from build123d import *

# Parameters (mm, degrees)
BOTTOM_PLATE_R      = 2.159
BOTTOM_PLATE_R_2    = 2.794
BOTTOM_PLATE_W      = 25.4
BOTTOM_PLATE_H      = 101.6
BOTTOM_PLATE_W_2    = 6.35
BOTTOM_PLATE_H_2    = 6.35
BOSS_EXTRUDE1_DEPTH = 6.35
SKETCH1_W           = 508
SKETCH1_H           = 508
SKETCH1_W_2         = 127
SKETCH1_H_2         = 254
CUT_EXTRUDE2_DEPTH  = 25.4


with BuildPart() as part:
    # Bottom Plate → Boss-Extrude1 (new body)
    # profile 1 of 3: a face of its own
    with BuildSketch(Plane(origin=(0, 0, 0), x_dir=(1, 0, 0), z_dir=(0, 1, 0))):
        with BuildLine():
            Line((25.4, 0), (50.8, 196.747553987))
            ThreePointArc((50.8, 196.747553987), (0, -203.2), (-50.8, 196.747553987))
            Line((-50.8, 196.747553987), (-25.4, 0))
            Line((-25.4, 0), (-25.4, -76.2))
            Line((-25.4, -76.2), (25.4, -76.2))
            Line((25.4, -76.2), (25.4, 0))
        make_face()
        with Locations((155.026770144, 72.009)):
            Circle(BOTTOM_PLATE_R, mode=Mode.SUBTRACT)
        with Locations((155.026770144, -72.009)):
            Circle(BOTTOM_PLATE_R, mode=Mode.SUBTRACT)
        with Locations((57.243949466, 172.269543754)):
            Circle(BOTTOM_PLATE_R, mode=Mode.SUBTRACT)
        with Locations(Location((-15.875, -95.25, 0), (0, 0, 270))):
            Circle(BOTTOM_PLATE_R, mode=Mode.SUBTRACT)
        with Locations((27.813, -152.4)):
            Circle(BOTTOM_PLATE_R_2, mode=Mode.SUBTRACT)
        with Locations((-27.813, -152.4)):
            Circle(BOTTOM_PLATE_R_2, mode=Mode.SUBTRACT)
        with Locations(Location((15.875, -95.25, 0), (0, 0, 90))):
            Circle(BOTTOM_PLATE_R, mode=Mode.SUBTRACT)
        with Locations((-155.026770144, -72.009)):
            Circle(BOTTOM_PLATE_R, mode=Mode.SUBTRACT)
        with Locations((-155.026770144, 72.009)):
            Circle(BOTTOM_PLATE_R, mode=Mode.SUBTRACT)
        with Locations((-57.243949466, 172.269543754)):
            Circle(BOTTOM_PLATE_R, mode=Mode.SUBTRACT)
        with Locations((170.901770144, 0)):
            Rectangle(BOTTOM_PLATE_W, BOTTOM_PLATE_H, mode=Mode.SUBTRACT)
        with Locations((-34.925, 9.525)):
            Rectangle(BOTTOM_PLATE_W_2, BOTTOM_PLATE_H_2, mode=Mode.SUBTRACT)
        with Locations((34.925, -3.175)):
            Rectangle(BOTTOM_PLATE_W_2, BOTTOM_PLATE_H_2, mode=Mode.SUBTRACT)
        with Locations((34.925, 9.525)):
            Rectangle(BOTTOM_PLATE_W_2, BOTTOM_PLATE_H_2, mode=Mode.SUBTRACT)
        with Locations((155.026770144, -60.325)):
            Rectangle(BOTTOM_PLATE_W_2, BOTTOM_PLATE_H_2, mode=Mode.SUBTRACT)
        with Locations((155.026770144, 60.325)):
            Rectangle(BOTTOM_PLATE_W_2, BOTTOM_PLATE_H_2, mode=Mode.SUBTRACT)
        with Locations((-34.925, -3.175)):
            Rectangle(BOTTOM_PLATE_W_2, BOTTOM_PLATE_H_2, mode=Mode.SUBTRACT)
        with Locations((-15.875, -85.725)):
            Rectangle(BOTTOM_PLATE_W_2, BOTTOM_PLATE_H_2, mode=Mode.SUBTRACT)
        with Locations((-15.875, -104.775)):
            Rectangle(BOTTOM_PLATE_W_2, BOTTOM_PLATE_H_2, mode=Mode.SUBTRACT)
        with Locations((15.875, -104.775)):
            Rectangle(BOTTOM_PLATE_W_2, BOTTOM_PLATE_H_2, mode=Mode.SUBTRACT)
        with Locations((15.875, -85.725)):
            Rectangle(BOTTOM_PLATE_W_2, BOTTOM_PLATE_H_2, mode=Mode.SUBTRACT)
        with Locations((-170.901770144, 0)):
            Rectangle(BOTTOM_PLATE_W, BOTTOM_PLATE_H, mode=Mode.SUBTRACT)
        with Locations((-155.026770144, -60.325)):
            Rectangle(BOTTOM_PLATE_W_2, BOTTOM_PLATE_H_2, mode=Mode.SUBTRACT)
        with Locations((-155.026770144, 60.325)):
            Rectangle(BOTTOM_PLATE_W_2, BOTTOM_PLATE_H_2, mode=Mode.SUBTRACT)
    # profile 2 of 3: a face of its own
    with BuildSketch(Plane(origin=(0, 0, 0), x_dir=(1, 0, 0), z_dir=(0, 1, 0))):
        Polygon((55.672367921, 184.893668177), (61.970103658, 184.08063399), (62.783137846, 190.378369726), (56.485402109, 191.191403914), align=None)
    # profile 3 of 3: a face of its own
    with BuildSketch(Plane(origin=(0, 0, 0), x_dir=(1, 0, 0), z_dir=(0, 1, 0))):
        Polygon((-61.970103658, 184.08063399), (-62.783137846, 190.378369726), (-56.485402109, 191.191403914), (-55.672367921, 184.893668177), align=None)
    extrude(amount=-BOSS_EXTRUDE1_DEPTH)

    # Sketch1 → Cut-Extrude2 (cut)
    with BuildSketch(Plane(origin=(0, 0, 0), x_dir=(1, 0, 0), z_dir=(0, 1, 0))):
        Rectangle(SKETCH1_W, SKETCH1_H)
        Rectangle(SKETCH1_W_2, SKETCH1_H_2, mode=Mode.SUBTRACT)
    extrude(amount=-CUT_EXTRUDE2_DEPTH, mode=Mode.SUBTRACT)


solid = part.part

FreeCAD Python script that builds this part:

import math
import FreeCAD as App
import Part
import Sketcher

V = App.Vector
Q = App.Units.Quantity


def add_polygon(sketch, points):
    """Adds a closed chain of lines whose ends are joined by coincident constraints."""
    first, n = sketch.GeometryCount, len(points)
    for a, b in zip(points, points[1:] + points[:1]):
        sketch.addGeometry(Part.LineSegment(App.Vector(*a, 0), App.Vector(*b, 0)), False)
    for i in range(n):
        sketch.addConstraint(Sketcher.Constraint("Coincident", first + i, 2, first + (i + 1) % n, 1))

doc = App.newDocument("Part")
body = doc.addObject("PartDesign::Body", "Body")

# Sketch on XZ plane
sketch1 = body.newObject("Sketcher::SketchObject", "Sketch")
sketch1.AttachmentSupport = (doc.getObject("XZ_Plane"), [""])
sketch1.MapMode = "FlatFace"
sketch1.addGeometry(Part.LineSegment(V(50.8, -196.7, 0), V(25.4, 0, 0)), False)  # 0
sketch1.addGeometry(Part.LineSegment(V(25.4, 0, 0), V(25.4, 76.2, 0)), False)  # 1
sketch1.addGeometry(Part.LineSegment(V(25.4, 76.2, 0), V(-25.4, 76.2, 0)), False)  # 2
sketch1.addGeometry(Part.LineSegment(V(-25.4, 76.2, 0), V(-25.4, 0, 0)), False)  # 3
sketch1.addGeometry(Part.LineSegment(V(-25.4, 0, 0), V(-50.8, -196.7, 0)), False)  # 4
sketch1.addGeometry(Part.ArcOfCircle(Part.Circle(V(0, 0, 0), V(0, 0, 1), 203.2), math.radians(-76), math.radians(256)), False)  # 5
sketch1.addGeometry(Part.Circle(V(155, 72, 0), V(0, 0, 1), 2.2), False)  # 6
sketch1.addGeometry(Part.Circle(V(27.8, 152.4, 0), V(0, 0, 1), 2.8), False)  # 7
add_polygon(sketch1, [(12.7, 108), (12.7, 101.6), (19.1, 101.6), (19.1, 108)])  # lines 8-11
sketch1.addGeometry(Part.Circle(V(15.9, 95.2, 0), V(0, 0, 1), 2.2), False)  # 12
add_polygon(sketch1, [(12.7, 88.9), (12.7, 82.5), (19.1, 82.5), (19.1, 88.9)])  # lines 13-16
add_polygon(sketch1, [(151.9, 63.5), (151.9, 57.1), (158.2, 57.1), (158.2, 63.5)])  # lines 17-20
add_polygon(sketch1, [(158.2, 50.8), (158.2, -50.8), (183.6, -50.8), (183.6, 50.8)])  # lines 21-24
add_polygon(sketch1, [(31.8, 6.3), (31.8, 0), (38.1, 0), (38.1, 6.3)])  # lines 25-28
add_polygon(sketch1, [(31.8, -6.3), (31.8, -12.7), (38.1, -12.7), (38.1, -6.3)])  # lines 29-32
sketch1.addGeometry(Part.Circle(V(-27.8, 152.4, 0), V(0, 0, 1), 2.8), False)  # 33
add_polygon(sketch1, [(-19.1, 108), (-19.1, 101.6), (-12.7, 101.6), (-12.7, 108)])  # lines 34-37
sketch1.addGeometry(Part.Circle(V(-15.9, 95.2, 0), V(0, 0, 1), 2.2), False)  # 38
add_polygon(sketch1, [(-19.1, 88.9), (-19.1, 82.5), (-12.7, 82.5), (-12.7, 88.9)])  # lines 39-42
sketch1.addGeometry(Part.Circle(V(-155, 72, 0), V(0, 0, 1), 2.2), False)  # 43
add_polygon(sketch1, [(-38.1, 6.3), (-38.1, 0), (-31.8, 0), (-31.8, 6.3)])  # lines 44-47
add_polygon(sketch1, [(-38.1, -6.3), (-38.1, -12.7), (-31.8, -12.7), (-31.8, -6.3)])  # lines 48-51
add_polygon(sketch1, [(-158.2, 63.5), (-158.2, 57.1), (-151.9, 57.1), (-151.9, 63.5)])  # lines 52-55
add_polygon(sketch1, [(-183.6, 50.8), (-183.6, -50.8), (-158.2, -50.8), (-158.2, 50.8)])  # lines 56-59
add_polygon(sketch1, [(151.9, -57.1), (151.9, -63.5), (158.2, -63.5), (158.2, -57.1)])  # lines 60-63
sketch1.addGeometry(Part.Circle(V(155, -72, 0), V(0, 0, 1), 2.2), False)  # 64
sketch1.addGeometry(Part.Circle(V(57.2, -172.3, 0), V(0, 0, 1), 2.2), False)  # 65
add_polygon(sketch1, [(-158.2, -57.1), (-158.2, -63.5), (-151.9, -63.5), (-151.9, -57.1)])  # lines 66-69
sketch1.addGeometry(Part.Circle(V(-155, -72, 0), V(0, 0, 1), 2.2), False)  # 70
sketch1.addGeometry(Part.Circle(V(-57.2, -172.3, 0), V(0, 0, 1), 2.2), False)  # 71
sketch1.addConstraint([
    Sketcher.Constraint("Coincident", 0, 2, 1, 1),
    Sketcher.Constraint("Coincident", 1, 2, 2, 1),
    Sketcher.Constraint("Coincident", 2, 2, 3, 1),
    Sketcher.Constraint("Coincident", 3, 2, 4, 1),
    Sketcher.Constraint("Coincident", 4, 2, 5, 2),
    Sketcher.Constraint("Coincident", 5, 1, 0, 1),
    Sketcher.Constraint("Vertical", 1),
    Sketcher.Constraint("Horizontal", 2),
    Sketcher.Constraint("Vertical", 3),
    Sketcher.Constraint("Vertical", 8),
    Sketcher.Constraint("Horizontal", 9),
    Sketcher.Constraint("Vertical", 10),
    Sketcher.Constraint("Horizontal", 11),
    Sketcher.Constraint("Vertical", 13),
    Sketcher.Constraint("Horizontal", 14),
    Sketcher.Constraint("Vertical", 15),
    Sketcher.Constraint("Horizontal", 16),
    Sketcher.Constraint("Vertical", 17),
    Sketcher.Constraint("Horizontal", 18),
    Sketcher.Constraint("Vertical", 19),
    Sketcher.Constraint("Horizontal", 20),
    Sketcher.Constraint("Vertical", 21),
    Sketcher.Constraint("Horizontal", 22),
    Sketcher.Constraint("Vertical", 23),
    Sketcher.Constraint("Horizontal", 24),
    Sketcher.Constraint("Vertical", 25),
    Sketcher.Constraint("Horizontal", 26),
    Sketcher.Constraint("Vertical", 27),
    Sketcher.Constraint("Horizontal", 28),
    Sketcher.Constraint("Vertical", 29),
    Sketcher.Constraint("Horizontal", 30),
    Sketcher.Constraint("Vertical", 31),
    Sketcher.Constraint("Horizontal", 32),
    Sketcher.Constraint("Vertical", 34),
    Sketcher.Constraint("Horizontal", 35),
    Sketcher.Constraint("Vertical", 36),
    Sketcher.Constraint("Horizontal", 37),
    Sketcher.Constraint("Vertical", 39),
    Sketcher.Constraint("Horizontal", 40),
    Sketcher.Constraint("Vertical", 41),
    Sketcher.Constraint("Horizontal", 42),
    Sketcher.Constraint("Vertical", 44),
    Sketcher.Constraint("Horizontal", 45),
    Sketcher.Constraint("Vertical", 46),
    Sketcher.Constraint("Horizontal", 47),
    Sketcher.Constraint("Vertical", 48),
    Sketcher.Constraint("Horizontal", 49),
    Sketcher.Constraint("Vertical", 50),
    Sketcher.Constraint("Horizontal", 51),
    Sketcher.Constraint("Vertical", 52),
    Sketcher.Constraint("Horizontal", 53),
    Sketcher.Constraint("Vertical", 54),
    Sketcher.Constraint("Horizontal", 55),
    Sketcher.Constraint("Vertical", 56),
    Sketcher.Constraint("Horizontal", 57),
    Sketcher.Constraint("Vertical", 58),
    Sketcher.Constraint("Horizontal", 59),
    Sketcher.Constraint("Vertical", 60),
    Sketcher.Constraint("Horizontal", 61),
    Sketcher.Constraint("Vertical", 62),
    Sketcher.Constraint("Horizontal", 63),
    Sketcher.Constraint("Vertical", 66),
    Sketcher.Constraint("Horizontal", 67),
    Sketcher.Constraint("Vertical", 68),
    Sketcher.Constraint("Horizontal", 69),
    Sketcher.Constraint("Coincident", 5, 3, -1, 1),
    Sketcher.Constraint("Equal", 6, 12),
    Sketcher.Constraint("Equal", 7, 33),
    Sketcher.Constraint("Equal", 12, 38),
    Sketcher.Constraint("Equal", 38, 43),
    Sketcher.Constraint("Equal", 43, 64),
    Sketcher.Constraint("Equal", 64, 65),
    Sketcher.Constraint("Equal", 65, 70),
    Sketcher.Constraint("Equal", 70, 71),
    Sketcher.Constraint("Symmetric", 43, 3, 64, 3, -1, 1),
    Sketcher.Constraint("Symmetric", 6, 3, 70, 3, -1, 1),
    Sketcher.Constraint("Symmetric", 0, 2, 3, 2, -1, 1),
    Sketcher.Constraint("Symmetric", 26, 2, 44, 2, -1, 1),
    Sketcher.Constraint("Symmetric", 32, 2, 46, 2, -1, 1),
    Sketcher.Constraint("Symmetric", 28, 2, 50, 2, -1, 1),
    Sketcher.Constraint("Symmetric", 23, 2, 56, 2, -1, 1),
    Sketcher.Constraint("Symmetric", 21, 2, 58, 2, -1, 1),
    Sketcher.Constraint("Symmetric", 54, 2, 60, 2, -1, 1),
    Sketcher.Constraint("Symmetric", 52, 2, 62, 2, -1, 1),
    Sketcher.Constraint("Symmetric", 19, 2, 66, 2, -1, 1),
    Sketcher.Constraint("Symmetric", 17, 2, 68, 2, -1, 1),
    Sketcher.Constraint("Symmetric", 7, 3, 33, 3, -2),
    Sketcher.Constraint("Symmetric", 12, 3, 38, 3, -2),
    Sketcher.Constraint("Symmetric", 6, 3, 43, 3, -2),
    Sketcher.Constraint("Symmetric", 65, 3, 71, 3, -2),
    Sketcher.Constraint("Symmetric", 9, 2, 34, 2, -2),
    Sketcher.Constraint("Symmetric", 11, 2, 36, 2, -2),
    Sketcher.Constraint("Symmetric", 14, 2, 39, 2, -2),
    Sketcher.Constraint("Symmetric", 16, 2, 41, 2, -2),
    Sketcher.Constraint("Symmetric", 25, 2, 45, 2, -2),
    Sketcher.Constraint("Symmetric", 30, 2, 48, 2, -2),
    Sketcher.Constraint("Symmetric", 18, 2, 52, 2, -2),
    Sketcher.Constraint("Symmetric", 20, 2, 54, 2, -2),
    Sketcher.Constraint("Symmetric", 27, 2, 31, 2, -1),
    Sketcher.Constraint("PointOnObject", 0, 2, -1),
    Sketcher.Constraint("Horizontal", 4, 2, 5, 1),
    Sketcher.Constraint("Horizontal", 22, 2, 56, 2),
    Sketcher.Constraint("Vertical", 11, 2, 13, 2),
    Sketcher.Constraint("Vertical", 10, 2, 14, 2),
    Sketcher.Constraint("Vertical", 19, 2, 21, 2),
    Sketcher.Constraint("Equal", 16, 18),
    Sketcher.Constraint("Equal", 20, 26),
    Sketcher.Constraint("Equal", 69, 8),
    Sketcher.Constraint("Equal", 10, 13),
    Sketcher.Constraint("Equal", 15, 17),
    Sketcher.Constraint("Equal", 19, 25),
    Sketcher.Constraint("Equal", 27, 29),
    Sketcher.Constraint("Radius", 5, Q("8 in")),
    Sketcher.Constraint("Diameter", 6, Q("0.17 in")),
    Sketcher.Constraint("Diameter", 7, Q("0.22 in")),
    Sketcher.Constraint("DistanceX", 2, 2, 2, 1, Q("2 in")),
    Sketcher.Constraint("DistanceX", 22, 1, 22, 2, Q("1 in")),
    Sketcher.Constraint("DistanceY", 1, 1, 1, 2, Q("3 in")),
    Sketcher.Constraint("DistanceY", 21, 2, 21, 1, Q("4 in")),
    Sketcher.Constraint("DistanceY", -1, 1, 7, 3, Q("6 in")),
    Sketcher.Constraint("DistanceX", 4, 2, -1, 1, Q("2 in")),
    Sketcher.Constraint("DistanceY", -1, 1, 8, 2, Q("4 in")),
    Sketcher.Constraint("DistanceX", 9, 1, 9, 2, Q("0.25 in")),
    Sketcher.Constraint("DistanceX", -1, 1, 8, 2, Q("0.5 in")),
    Sketcher.Constraint("DistanceY", -1, 1, 15, 2, Q("3.5 in")),
    Sketcher.Constraint("DistanceY", -1, 1, 19, 2, Q("2.5 in")),
    Sketcher.Constraint("DistanceX", -1, 1, 26, 2, Q("1.5 in")),
    Sketcher.Constraint("DistanceY", -1, 1, 12, 3, Q("3.75 in")),
    Sketcher.Constraint("DistanceY", -1, 1, 6, 3, Q("2.835 in")),
    Sketcher.Constraint("DistanceX", -1, 1, 7, 3, Q("1.095 in")),
    Sketcher.Constraint("DistanceX", -1, 1, 12, 3, Q("0.625 in")),
    Sketcher.Constraint("DistanceX", -1, 1, 6, 3, 155.02677),
    Sketcher.Constraint("DistanceX", -1, 1, 65, 3, 57.243949),
    Sketcher.Constraint("DistanceX", -1, 1, 17, 2, 151.85177),
    Sketcher.Constraint("DistanceY", 65, 3, -1, 1, 172.269544),
])
pad1 = body.newObject("PartDesign::Pad", "Pad")
pad1.Profile = sketch1
pad1.Length = Q("0.25 in")

# Sketch on XZ plane
sketch2 = body.newObject("Sketcher::SketchObject", "Sketch001")
sketch2.AttachmentSupport = (doc.getObject("XZ_Plane"), [""])
sketch2.MapMode = "FlatFace"
add_polygon(sketch2, [(-254, -254), (-254, 254), (254, 254), (254, -254)])  # lines 0-3
add_polygon(sketch2, [(64, 127), (-64, 127), (-64, -127), (64, -127)])  # lines 4-7
sketch2.addConstraint([
    Sketcher.Constraint("Vertical", 0),
    Sketcher.Constraint("Horizontal", 1),
    Sketcher.Constraint("Vertical", 2),
    Sketcher.Constraint("Horizontal", 3),
    Sketcher.Constraint("Horizontal", 4),
    Sketcher.Constraint("Vertical", 5),
    Sketcher.Constraint("Horizontal", 6),
    Sketcher.Constraint("Vertical", 7),
    Sketcher.Constraint("Symmetric", 0, 2, 2, 2, -1, 1),
    Sketcher.Constraint("Symmetric", 4, 2, 6, 2, -1, 1),
    Sketcher.Constraint("Equal", 3, 0),
    Sketcher.Constraint("DistanceX", 1, 1, 1, 2, Q("20 in")),
    Sketcher.Constraint("DistanceX", 4, 2, 4, 1, Q("5 in")),
    Sketcher.Constraint("DistanceY", 5, 2, 5, 1, Q("10 in")),
])
pocket1 = body.newObject("PartDesign::Pocket", "Pocket")
pocket1.Profile = sketch2
pocket1.Length = Q("1 in")
pocket1.Reversed = True

doc.recompute()
